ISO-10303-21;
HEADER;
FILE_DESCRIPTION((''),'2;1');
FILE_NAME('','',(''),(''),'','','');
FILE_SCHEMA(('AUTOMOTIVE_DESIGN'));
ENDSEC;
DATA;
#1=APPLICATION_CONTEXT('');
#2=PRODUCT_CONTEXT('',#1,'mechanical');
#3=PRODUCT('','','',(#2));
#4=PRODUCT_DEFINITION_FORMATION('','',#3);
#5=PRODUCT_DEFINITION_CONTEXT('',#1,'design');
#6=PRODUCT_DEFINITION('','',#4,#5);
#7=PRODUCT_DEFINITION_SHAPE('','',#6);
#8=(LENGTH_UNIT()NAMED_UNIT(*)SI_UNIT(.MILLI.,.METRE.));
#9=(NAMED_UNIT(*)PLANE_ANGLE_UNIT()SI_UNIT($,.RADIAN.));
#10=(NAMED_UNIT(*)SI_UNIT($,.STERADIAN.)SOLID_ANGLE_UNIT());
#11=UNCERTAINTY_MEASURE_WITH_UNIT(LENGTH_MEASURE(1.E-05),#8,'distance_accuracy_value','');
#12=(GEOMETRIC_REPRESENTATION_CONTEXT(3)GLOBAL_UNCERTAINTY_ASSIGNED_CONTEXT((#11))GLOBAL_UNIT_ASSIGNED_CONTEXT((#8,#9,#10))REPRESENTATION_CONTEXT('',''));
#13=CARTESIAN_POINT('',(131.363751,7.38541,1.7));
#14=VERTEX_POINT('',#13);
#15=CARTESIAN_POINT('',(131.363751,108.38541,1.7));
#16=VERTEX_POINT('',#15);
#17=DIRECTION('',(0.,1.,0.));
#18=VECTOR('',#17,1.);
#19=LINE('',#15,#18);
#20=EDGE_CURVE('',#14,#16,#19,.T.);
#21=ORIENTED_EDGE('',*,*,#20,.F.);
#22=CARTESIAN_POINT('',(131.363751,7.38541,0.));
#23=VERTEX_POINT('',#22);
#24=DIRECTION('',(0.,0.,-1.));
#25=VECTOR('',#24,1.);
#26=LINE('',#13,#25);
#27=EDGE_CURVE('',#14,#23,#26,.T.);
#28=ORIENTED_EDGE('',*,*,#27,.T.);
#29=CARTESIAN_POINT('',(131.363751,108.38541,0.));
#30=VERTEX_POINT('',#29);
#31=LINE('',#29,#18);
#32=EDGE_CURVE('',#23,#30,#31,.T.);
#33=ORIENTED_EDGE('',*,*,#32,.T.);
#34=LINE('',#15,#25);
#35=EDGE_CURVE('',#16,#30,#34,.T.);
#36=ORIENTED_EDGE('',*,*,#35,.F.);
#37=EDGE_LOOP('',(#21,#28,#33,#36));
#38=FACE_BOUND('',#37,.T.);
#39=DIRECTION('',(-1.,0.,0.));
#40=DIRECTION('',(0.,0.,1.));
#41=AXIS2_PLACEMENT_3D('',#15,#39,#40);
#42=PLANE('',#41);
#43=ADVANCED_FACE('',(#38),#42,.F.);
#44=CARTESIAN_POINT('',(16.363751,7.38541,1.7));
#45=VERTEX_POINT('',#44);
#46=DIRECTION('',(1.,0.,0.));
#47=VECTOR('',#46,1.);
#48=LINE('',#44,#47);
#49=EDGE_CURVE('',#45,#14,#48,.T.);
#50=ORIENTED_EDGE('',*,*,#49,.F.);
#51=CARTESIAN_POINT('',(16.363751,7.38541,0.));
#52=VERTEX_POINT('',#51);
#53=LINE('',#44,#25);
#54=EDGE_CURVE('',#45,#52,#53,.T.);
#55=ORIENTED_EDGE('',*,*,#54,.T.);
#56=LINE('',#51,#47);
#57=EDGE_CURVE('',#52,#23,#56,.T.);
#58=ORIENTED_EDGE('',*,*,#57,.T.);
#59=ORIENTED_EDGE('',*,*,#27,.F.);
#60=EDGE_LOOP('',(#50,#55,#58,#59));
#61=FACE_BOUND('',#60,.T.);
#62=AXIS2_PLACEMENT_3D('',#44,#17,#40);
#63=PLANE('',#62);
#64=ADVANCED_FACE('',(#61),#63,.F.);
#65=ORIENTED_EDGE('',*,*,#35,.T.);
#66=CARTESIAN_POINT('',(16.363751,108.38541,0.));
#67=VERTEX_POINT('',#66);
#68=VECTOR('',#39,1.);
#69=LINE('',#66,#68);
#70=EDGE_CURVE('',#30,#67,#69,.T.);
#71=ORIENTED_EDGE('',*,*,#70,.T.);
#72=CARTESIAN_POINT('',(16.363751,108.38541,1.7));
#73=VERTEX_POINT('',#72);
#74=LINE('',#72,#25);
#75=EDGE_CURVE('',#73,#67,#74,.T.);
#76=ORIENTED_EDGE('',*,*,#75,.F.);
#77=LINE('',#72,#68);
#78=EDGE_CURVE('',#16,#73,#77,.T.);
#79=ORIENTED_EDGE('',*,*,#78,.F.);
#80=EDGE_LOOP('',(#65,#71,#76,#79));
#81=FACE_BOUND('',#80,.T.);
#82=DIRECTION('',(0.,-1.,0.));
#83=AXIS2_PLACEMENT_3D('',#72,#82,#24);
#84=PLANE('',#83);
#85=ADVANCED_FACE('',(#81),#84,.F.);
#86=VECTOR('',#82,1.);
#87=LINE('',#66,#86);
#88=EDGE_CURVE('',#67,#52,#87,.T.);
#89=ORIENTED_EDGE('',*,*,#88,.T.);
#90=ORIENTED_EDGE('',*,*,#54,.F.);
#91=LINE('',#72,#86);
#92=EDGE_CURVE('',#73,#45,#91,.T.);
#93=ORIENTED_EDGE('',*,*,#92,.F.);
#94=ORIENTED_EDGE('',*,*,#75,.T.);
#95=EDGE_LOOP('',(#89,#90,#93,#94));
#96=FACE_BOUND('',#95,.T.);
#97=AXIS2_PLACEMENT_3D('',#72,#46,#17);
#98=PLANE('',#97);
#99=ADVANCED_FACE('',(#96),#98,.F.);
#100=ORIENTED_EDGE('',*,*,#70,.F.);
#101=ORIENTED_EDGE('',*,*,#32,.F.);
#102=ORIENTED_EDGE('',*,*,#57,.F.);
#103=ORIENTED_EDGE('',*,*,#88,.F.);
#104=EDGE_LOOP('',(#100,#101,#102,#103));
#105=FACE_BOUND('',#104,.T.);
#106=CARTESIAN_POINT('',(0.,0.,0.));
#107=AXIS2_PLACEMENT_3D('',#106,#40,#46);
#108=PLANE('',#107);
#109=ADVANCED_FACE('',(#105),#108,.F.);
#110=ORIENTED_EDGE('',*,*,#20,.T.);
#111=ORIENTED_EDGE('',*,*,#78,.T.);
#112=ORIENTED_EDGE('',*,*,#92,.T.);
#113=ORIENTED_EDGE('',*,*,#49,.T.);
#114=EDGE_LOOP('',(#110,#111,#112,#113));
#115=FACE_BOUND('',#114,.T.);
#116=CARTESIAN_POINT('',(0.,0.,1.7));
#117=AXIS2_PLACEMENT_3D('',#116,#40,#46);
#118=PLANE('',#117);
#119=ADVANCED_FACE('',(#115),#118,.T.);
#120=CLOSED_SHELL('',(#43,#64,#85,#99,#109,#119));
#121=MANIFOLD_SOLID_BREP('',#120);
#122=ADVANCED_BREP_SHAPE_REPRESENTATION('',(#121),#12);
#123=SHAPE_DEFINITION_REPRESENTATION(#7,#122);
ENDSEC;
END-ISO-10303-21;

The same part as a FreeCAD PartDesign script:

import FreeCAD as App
import Part
import Sketcher

V = App.Vector


def add_polygon(sketch, points):
    """Adds a closed chain of lines whose ends are joined by coincident constraints."""
    first, n = sketch.GeometryCount, len(points)
    for a, b in zip(points, points[1:] + points[:1]):
        sketch.addGeometry(Part.LineSegment(App.Vector(*a, 0), App.Vector(*b, 0)), False)
    for i in range(n):
        sketch.addConstraint(Sketcher.Constraint("Coincident", first + i, 2, first + (i + 1) % n, 1))

doc = App.newDocument("Part")
params = doc.addObject("Spreadsheet::Sheet", "Params")
for row, (alias, value) in enumerate([
    ("sketch1_width", "115 mm"),
    ("sketch1_height", "101 mm"),
    ("pad1_length", "1.7 mm"),
], start=1):
    params.set(f"A{row}", alias)
    params.set(f"B{row}", "=" + value)
    params.setAlias(f"B{row}", alias)

body = doc.addObject("PartDesign::Body", "Body")

sketch1 = body.newObject("Sketcher::SketchObject", "Sketch")
sketch1.AttachmentSupport = (doc.getObject("XY_Plane"), [""])
sketch1.MapMode = "FlatFace"
add_polygon(sketch1, [(16, 108), (16, 7), (131, 7), (131, 108)])
sketch1.addConstraint([
    Sketcher.Constraint("Vertical", 0),
    Sketcher.Constraint("Horizontal", 1),
    Sketcher.Constraint("Vertical", 2),
    Sketcher.Constraint("Horizontal", 3),
    Sketcher.Constraint("DistanceX", 1, 1, 1, 2, 115.0),
    Sketcher.Constraint("DistanceY", 0, 2, 0, 1, 101.0),
    Sketcher.Constraint("DistanceX", -1, 1, 0, 2, 16.363751),
    Sketcher.Constraint("DistanceY", -1, 1, 0, 2, 7.38541),
])
sketch1.setExpression("Constraints[8]", "Params.sketch1_width")
sketch1.setExpression("Constraints[9]", "Params.sketch1_height")
pad1 = body.newObject("PartDesign::Pad", "Pad")
pad1.Profile = sketch1
pad1.setExpression("Length", "Params.pad1_length")

doc.recompute()
